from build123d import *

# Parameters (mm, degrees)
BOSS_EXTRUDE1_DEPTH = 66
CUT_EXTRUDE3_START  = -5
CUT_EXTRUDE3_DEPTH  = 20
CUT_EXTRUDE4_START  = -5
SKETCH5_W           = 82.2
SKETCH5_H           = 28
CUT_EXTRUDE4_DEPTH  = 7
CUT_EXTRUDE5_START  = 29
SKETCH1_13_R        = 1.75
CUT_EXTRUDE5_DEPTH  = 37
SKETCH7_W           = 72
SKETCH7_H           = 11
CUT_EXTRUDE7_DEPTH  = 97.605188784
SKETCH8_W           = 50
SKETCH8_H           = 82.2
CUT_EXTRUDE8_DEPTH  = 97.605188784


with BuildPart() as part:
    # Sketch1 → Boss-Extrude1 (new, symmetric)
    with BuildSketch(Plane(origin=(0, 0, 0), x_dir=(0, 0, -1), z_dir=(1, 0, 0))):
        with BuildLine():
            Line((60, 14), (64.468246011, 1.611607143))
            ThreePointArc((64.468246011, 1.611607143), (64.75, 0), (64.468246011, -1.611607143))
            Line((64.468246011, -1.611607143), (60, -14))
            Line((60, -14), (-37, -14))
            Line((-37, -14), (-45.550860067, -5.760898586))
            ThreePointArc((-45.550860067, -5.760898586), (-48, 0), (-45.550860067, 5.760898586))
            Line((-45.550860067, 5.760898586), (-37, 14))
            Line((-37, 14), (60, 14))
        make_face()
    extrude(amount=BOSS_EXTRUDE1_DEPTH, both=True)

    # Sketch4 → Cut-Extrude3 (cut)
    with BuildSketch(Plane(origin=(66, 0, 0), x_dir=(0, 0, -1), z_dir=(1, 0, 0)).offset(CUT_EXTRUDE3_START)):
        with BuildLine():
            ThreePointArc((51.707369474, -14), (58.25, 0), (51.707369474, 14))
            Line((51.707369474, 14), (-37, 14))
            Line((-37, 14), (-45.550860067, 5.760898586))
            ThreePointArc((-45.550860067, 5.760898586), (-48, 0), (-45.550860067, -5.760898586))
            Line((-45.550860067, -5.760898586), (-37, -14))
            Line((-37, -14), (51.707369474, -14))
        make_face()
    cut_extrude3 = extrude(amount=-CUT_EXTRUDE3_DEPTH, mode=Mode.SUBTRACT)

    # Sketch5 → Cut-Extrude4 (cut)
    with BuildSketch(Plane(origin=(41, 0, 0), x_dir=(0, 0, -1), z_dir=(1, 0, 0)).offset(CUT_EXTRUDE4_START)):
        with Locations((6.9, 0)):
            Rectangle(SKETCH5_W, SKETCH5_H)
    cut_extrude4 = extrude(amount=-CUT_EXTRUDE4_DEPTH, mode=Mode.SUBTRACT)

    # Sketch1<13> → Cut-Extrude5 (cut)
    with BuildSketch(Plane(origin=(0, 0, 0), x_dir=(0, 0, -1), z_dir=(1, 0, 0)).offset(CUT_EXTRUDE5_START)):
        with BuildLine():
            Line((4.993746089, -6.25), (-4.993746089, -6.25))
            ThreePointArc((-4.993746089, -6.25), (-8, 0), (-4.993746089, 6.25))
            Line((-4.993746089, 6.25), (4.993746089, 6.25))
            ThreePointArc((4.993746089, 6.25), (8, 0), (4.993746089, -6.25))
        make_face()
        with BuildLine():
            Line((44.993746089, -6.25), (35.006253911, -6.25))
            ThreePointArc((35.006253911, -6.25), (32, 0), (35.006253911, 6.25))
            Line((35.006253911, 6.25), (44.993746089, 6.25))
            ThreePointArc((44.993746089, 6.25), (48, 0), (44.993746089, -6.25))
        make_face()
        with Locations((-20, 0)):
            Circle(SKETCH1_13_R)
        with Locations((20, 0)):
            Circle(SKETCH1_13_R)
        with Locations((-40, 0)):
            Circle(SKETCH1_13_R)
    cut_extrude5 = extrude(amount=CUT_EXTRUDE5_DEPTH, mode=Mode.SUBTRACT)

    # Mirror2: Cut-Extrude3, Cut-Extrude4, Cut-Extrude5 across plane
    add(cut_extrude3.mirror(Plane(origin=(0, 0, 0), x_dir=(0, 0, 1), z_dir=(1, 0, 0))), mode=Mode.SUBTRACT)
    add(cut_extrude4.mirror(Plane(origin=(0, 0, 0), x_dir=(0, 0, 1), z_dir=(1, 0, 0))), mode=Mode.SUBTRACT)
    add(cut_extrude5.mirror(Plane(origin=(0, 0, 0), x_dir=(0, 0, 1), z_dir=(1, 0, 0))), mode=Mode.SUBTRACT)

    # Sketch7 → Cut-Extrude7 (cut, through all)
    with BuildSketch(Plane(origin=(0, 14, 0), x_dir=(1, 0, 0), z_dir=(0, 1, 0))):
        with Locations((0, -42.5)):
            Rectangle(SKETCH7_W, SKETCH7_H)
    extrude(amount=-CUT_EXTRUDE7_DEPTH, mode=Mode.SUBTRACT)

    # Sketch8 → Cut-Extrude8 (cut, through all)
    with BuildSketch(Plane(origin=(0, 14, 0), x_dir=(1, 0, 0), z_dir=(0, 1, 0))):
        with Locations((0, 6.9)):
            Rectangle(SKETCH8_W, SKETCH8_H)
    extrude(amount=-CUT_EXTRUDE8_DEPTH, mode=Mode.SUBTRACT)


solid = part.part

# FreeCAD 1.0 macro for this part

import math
import FreeCAD as App
import Part
import Sketcher
Q = App.Units.Quantity

doc = App.newDocument("Part")
body = doc.addObject("PartDesign::Body", "Body")

# Sketch on YZ plane
sketch1 = doc.addObject("Sketcher::SketchObject", "Sketch")
body.addObject(sketch1)
sketch1.AttachmentSupport = (doc.YZ_Plane, [""])
sketch1.MapMode = "FlatFace"
sketch1.addGeometry([
    Part.LineSegment(App.Vector(1.611607, -64.468246, 0), App.Vector(14, -60, 0)),  # 0
    Part.LineSegment(App.Vector(14, -60, 0), App.Vector(14, 37, 0)),  # 1
    Part.LineSegment(App.Vector(14, 37, 0), App.Vector(5.760899, 45.55086, 0)),  # 2
    Part.ArcOfCircle(Part.Circle(App.Vector(0, 40, 0), App.Vector(0, 0, 1), 8), math.radians(43.936245), math.radians(136.063755)),  # 3
    Part.LineSegment(App.Vector(-5.760899, 45.55086, 0), App.Vector(-14, 37, 0)),  # 4
    Part.LineSegment(App.Vector(-14, 37, 0), App.Vector(-14, -60, 0)),  # 5
    Part.LineSegment(App.Vector(-14, -60, 0), App.Vector(-1.611607, -64.468246, 0)),  # 6
    Part.ArcOfCircle(Part.Circle(App.Vector(0, -60, 0), App.Vector(0, 0, 1), 4.75), math.radians(-109.833362), math.radians(-70.166638)),  # 7
], False)
sketch1.addConstraint([
    Sketcher.Constraint("Coincident", 0, 2, 1, 1),
    Sketcher.Constraint("Coincident", 1, 2, 2, 1),
    Sketcher.Constraint("Tangent", 2, 2, 3, 1),
    Sketcher.Constraint("Tangent", 3, 2, 4, 1),
    Sketcher.Constraint("Coincident", 4, 2, 5, 1),
    Sketcher.Constraint("Coincident", 5, 2, 6, 1),
    Sketcher.Constraint("Tangent", 6, 2, 7, 1),
    Sketcher.Constraint("Tangent", 7, 2, 0, 1),
    Sketcher.Constraint("Vertical", 1),
    Sketcher.Constraint("Vertical", 5),
    Sketcher.Constraint("Symmetric", 2, 2, 3, 2, -2),
    Sketcher.Constraint("Symmetric", 0, 2, 5, 2, -2),
    Sketcher.Constraint("PointOnObject", 7, 3, -2),
    Sketcher.Constraint("Horizontal", 7, 3, 0, 2),
    Sketcher.Constraint("Radius", 3, Q("8 mm")),
    Sketcher.Constraint("DistanceY", 1, 1, 1, 2, Q("97 mm")),
    Sketcher.Constraint("Radius", 7, Q("4.75 mm")),
    Sketcher.Constraint("DistanceY", -1, 1, 3, 3, Q("40 mm")),
    Sketcher.Constraint("DistanceY", 7, 3, -1, 1, Q("60 mm")),
    Sketcher.Constraint("DistanceX", -1, 1, 0, 2, Q("14 mm")),
])
pad1 = doc.addObject("PartDesign::Pad", "Pad")
body.addObject(pad1)
pad1.Profile = sketch1
pad1.Length = 132
pad1.Midplane = True

# Sketch on YZ plane
sketch2 = doc.addObject("Sketcher::SketchObject", "Sketch001")
body.addObject(sketch2)
sketch2.AttachmentSupport = (doc.YZ_Plane, [""])
sketch2.MapMode = "FlatFace"
sketch2.AttachmentOffset = App.Placement(App.Vector(0, 0, 61), App.Rotation())
sketch2.addGeometry([
    Part.ArcOfCircle(Part.Circle(App.Vector(0, -40, 0), App.Vector(0, 0, 1), 18.25), math.radians(-140.096261), math.radians(-39.903739)),  # 0
    Part.LineSegment(App.Vector(14, -51.707369, 0), App.Vector(14, 37, 0)),  # 1
    Part.LineSegment(App.Vector(14, 37, 0), App.Vector(5.760899, 45.55086, 0)),  # 2
    Part.ArcOfCircle(Part.Circle(App.Vector(0, 40, 0), App.Vector(0, 0, 1), 8), math.radians(43.936245), math.radians(136.063755)),  # 3
    Part.LineSegment(App.Vector(-5.760899, 45.55086, 0), App.Vector(-14, 37, 0)),  # 4
    Part.LineSegment(App.Vector(-14, 37, 0), App.Vector(-14, -51.707369, 0)),  # 5
], False)
sketch2.addConstraint([
    Sketcher.Constraint("Coincident", 0, 2, 1, 1),
    Sketcher.Constraint("Coincident", 1, 2, 2, 1),
    Sketcher.Constraint("Tangent", 2, 2, 3, 1),
    Sketcher.Constraint("Tangent", 3, 2, 4, 1),
    Sketcher.Constraint("Coincident", 4, 2, 5, 1),
    Sketcher.Constraint("Coincident", 5, 2, 0, 1),
    Sketcher.Constraint("Vertical", 1),
    Sketcher.Constraint("Vertical", 5),
    Sketcher.Constraint("Symmetric", 0, 3, 3, 3, -1, 1),
    Sketcher.Constraint("Symmetric", 2, 2, 3, 2, -2),
    Sketcher.Constraint("Horizontal", 1, 2, 4, 2),
    Sketcher.Constraint("Radius", 3, Q("8 mm")),
    Sketcher.Constraint("Radius", 0, Q("18.25 mm")),
    Sketcher.Constraint("DistanceY", 0, 3, -1, 1, Q("40 mm")),
    Sketcher.Constraint("DistanceX", -1, 1, 0, 2, Q("14 mm")),
    Sketcher.Constraint("DistanceY", -1, 1, 1, 2, Q("37 mm")),
])
pocket1 = doc.addObject("PartDesign::Pocket", "Pocket")
body.addObject(pocket1)
pocket1.Profile = sketch2
pocket1.Length = 20

# Sketch on YZ plane
sketch3 = doc.addObject("Sketcher::SketchObject", "Sketch002")
body.addObject(sketch3)
sketch3.AttachmentSupport = (doc.YZ_Plane, [""])
sketch3.MapMode = "FlatFace"
sketch3.AttachmentOffset = App.Placement(App.Vector(0, 0, 36), App.Rotation())
sketch3.addGeometry([
    Part.LineSegment(App.Vector(14, 34.2, 0), App.Vector(-14, 34.2, 0)),
    Part.LineSegment(App.Vector(-14, 34.2, 0), App.Vector(-14, -48, 0)),
    Part.LineSegment(App.Vector(-14, -48, 0), App.Vector(14, -48, 0)),
    Part.LineSegment(App.Vector(14, -48, 0), App.Vector(14, 34.2, 0)),
], False)
sketch3.addConstraint([
    Sketcher.Constraint("Coincident", 0, 2, 1, 1),
    Sketcher.Constraint("Coincident", 1, 2, 2, 1),
    Sketcher.Constraint("Coincident", 2, 2, 3, 1),
    Sketcher.Constraint("Coincident", 3, 2, 0, 1),
    Sketcher.Constraint("Horizontal", 0),
    Sketcher.Constraint("Vertical", 1),
    Sketcher.Constraint("Horizontal", 2),
    Sketcher.Constraint("Vertical", 3),
    Sketcher.Constraint("DistanceX", 0, 2, 0, 1, Q("28 mm")),
    Sketcher.Constraint("DistanceY", 1, 2, 1, 1, Q("82.2 mm")),
    Sketcher.Constraint("DistanceX", 0, 2, -1, 1, Q("14 mm")),
    Sketcher.Constraint("DistanceY", 1, 2, -1, 1, Q("48 mm")),
])
pocket2 = doc.addObject("PartDesign::Pocket", "Pocket001")
body.addObject(pocket2)
pocket2.Profile = sketch3
pocket2.Length = 7

# Sketch on YZ plane
sketch4 = doc.addObject("Sketcher::SketchObject", "Sketch003")
body.addObject(sketch4)
sketch4.AttachmentSupport = (doc.YZ_Plane, [""])
sketch4.MapMode = "FlatFace"
sketch4.AttachmentOffset = App.Placement(App.Vector(0, 0, 29), App.Rotation())
sketch4.addGeometry([
    Part.LineSegment(App.Vector(-6.25, 4.993746, 0), App.Vector(-6.25, -4.993746, 0)),  # 0
    Part.ArcOfCircle(Part.Circle(App.Vector(0, 0, 0), App.Vector(0, 0, 1), 8), math.radians(-141.375167), math.radians(-38.624833)),  # 1
    Part.LineSegment(App.Vector(6.25, -4.993746, 0), App.Vector(6.25, 4.993746, 0)),  # 2
    Part.ArcOfCircle(Part.Circle(App.Vector(0, 0, 0), App.Vector(0, 0, 1), 8), math.radians(38.624833), math.radians(141.375167)),  # 3
    Part.LineSegment(App.Vector(-6.25, -35.006254, 0), App.Vector(-6.25, -44.993746, 0)),  # 4
    Part.ArcOfCircle(Part.Circle(App.Vector(0, -40, 0), App.Vector(0, 0, 1), 8), math.radians(-141.375167), math.radians(-38.624833)),  # 5
    Part.LineSegment(App.Vector(6.25, -44.993746, 0), App.Vector(6.25, -35.006254, 0)),  # 6
    Part.ArcOfCircle(Part.Circle(App.Vector(0, -40, 0), App.Vector(0, 0, 1), 8), math.radians(38.624833), math.radians(141.375167)),  # 7
    Part.Circle(App.Vector(0, 20, 0), App.Vector(0, 0, 1), 1.75),  # 8
    Part.Circle(App.Vector(0, -20, 0), App.Vector(0, 0, 1), 1.75),  # 9
    Part.Circle(App.Vector(0, 40, 0), App.Vector(0, 0, 1), 1.75),  # 10
], False)
sketch4.addConstraint([
    Sketcher.Constraint("Coincident", 0, 2, 1, 1),
    Sketcher.Constraint("Coincident", 1, 2, 2, 1),
    Sketcher.Constraint("Coincident", 2, 2, 3, 1),
    Sketcher.Constraint("Coincident", 3, 2, 0, 1),
    Sketcher.Constraint("Coincident", 4, 2, 5, 1),
    Sketcher.Constraint("Coincident", 5, 2, 6, 1),
    Sketcher.Constraint("Coincident", 6, 2, 7, 1),
    Sketcher.Constraint("Coincident", 7, 2, 4, 1),
    Sketcher.Constraint("Vertical", 0),
    Sketcher.Constraint("Vertical", 2),
    Sketcher.Constraint("Vertical", 4),
    Sketcher.Constraint("Vertical", 6),
    Sketcher.Constraint("Coincident", 1, 3, -1, 1),
    Sketcher.Constraint("Coincident", 3, 3, -1, 1),
    Sketcher.Constraint("Coincident", 7, 3, 5, 3),
    Sketcher.Constraint("Equal", 1, 3),
    Sketcher.Constraint("Equal", 3, 5),
    Sketcher.Constraint("Equal", 5, 7),
    Sketcher.Constraint("Equal", 8, 9),
    Sketcher.Constraint("Equal", 9, 10),
    Sketcher.Constraint("Symmetric", 8, 3, 9, 3, -1, 1),
    Sketcher.Constraint("Symmetric", 5, 3, 10, 3, -1, 1),
    Sketcher.Constraint("Symmetric", 4, 2, 5, 2, -2),
    Sketcher.Constraint("PointOnObject", 8, 3, -2),
    Sketcher.Constraint("Horizontal", 0, 2, 1, 2),
    Sketcher.Constraint("Vertical", 3, 2, 4, 2),
    Sketcher.Constraint("Radius", 1, Q("8 mm")),
    Sketcher.Constraint("Diameter", 8, Q("3.5 mm")),
    Sketcher.Constraint("DistanceY", 5, 3, -1, 1, Q("40 mm")),
    Sketcher.Constraint("DistanceY", -1, 1, 8, 3, Q("20 mm")),
    Sketcher.Constraint("DistanceX", 0, 2, 1, 2, Q("12.5 mm")),
])
pocket3 = doc.addObject("PartDesign::Pocket", "Pocket002")
body.addObject(pocket3)
pocket3.Profile = sketch4
pocket3.Length = 37
pocket3.Reversed = True
doc.recompute()

mirrored = doc.addObject("PartDesign::Mirrored", "Mirrored")
body.addObject(mirrored)
mirrored.Originals = [pocket1, pocket2, pocket3]
mirrored.MirrorPlane = (doc.YZ_Plane, [""])
body.Tip = mirrored

# Sketch on XZ plane
sketch5 = doc.addObject("Sketcher::SketchObject", "Sketch004")
body.addObject(sketch5)
sketch5.AttachmentSupport = (doc.XZ_Plane, [""])
sketch5.MapMode = "FlatFace"
sketch5.AttachmentOffset = App.Placement(App.Vector(0, 0, -14), App.Rotation())
sketch5.addGeometry([
    Part.LineSegment(App.Vector(-36, 37, 0), App.Vector(-36, 48, 0)),
    Part.LineSegment(App.Vector(-36, 48, 0), App.Vector(36, 48, 0)),
    Part.LineSegment(App.Vector(36, 48, 0), App.Vector(36, 37, 0)),
    Part.LineSegment(App.Vector(36, 37, 0), App.Vector(-36, 37, 0)),
], False)
sketch5.addConstraint([
    Sketcher.Constraint("Coincident", 0, 2, 1, 1),
    Sketcher.Constraint("Coincident", 1, 2, 2, 1),
    Sketcher.Constraint("Coincident", 2, 2, 3, 1),
    Sketcher.Constraint("Coincident", 3, 2, 0, 1),
    Sketcher.Constraint("Vertical", 0),
    Sketcher.Constraint("Horizontal", 1),
    Sketcher.Constraint("Vertical", 2),
    Sketcher.Constraint("Horizontal", 3),
    Sketcher.Constraint("DistanceX", 1, 1, 1, 2, Q("72 mm")),
    Sketcher.Constraint("DistanceY", 0, 1, 0, 2, Q("11 mm")),
    Sketcher.Constraint("DistanceX", 0, 2, -1, 1, Q("36 mm")),
    Sketcher.Constraint("DistanceY", -1, 1, 0, 2, Q("48 mm")),
])
pocket4 = doc.addObject("PartDesign::Pocket", "Pocket003")
body.addObject(pocket4)
pocket4.Profile = sketch5
pocket4.Type = "ThroughAll"
pocket4.Reversed = True

# Sketch on XZ plane
sketch6 = doc.addObject("Sketcher::SketchObject", "Sketch005")
body.addObject(sketch6)
sketch6.AttachmentSupport = (doc.XZ_Plane, [""])
sketch6.MapMode = "FlatFace"
sketch6.AttachmentOffset = App.Placement(App.Vector(0, 0, -14), App.Rotation())
sketch6.addGeometry([
    Part.LineSegment(App.Vector(-25, -48, 0), App.Vector(-25, 34.2, 0)),
    Part.LineSegment(App.Vector(-25, 34.2, 0), App.Vector(25, 34.2, 0)),
    Part.LineSegment(App.Vector(25, 34.2, 0), App.Vector(25, -48, 0)),
    Part.LineSegment(App.Vector(25, -48, 0), App.Vector(-25, -48, 0)),
], False)
sketch6.addConstraint([
    Sketcher.Constraint("Coincident", 0, 2, 1, 1),
    Sketcher.Constraint("Coincident", 1, 2, 2, 1),
    Sketcher.Constraint("Coincident", 2, 2, 3, 1),
    Sketcher.Constraint("Coincident", 3, 2, 0, 1),
    Sketcher.Constraint("Vertical", 0),
    Sketcher.Constraint("Horizontal", 1),
    Sketcher.Constraint("Vertical", 2),
    Sketcher.Constraint("Horizontal", 3),
    Sketcher.Constraint("DistanceX", 1, 1, 1, 2, Q("50 mm")),
    Sketcher.Constraint("DistanceY", 0, 1, 0, 2, Q("82.2 mm")),
    Sketcher.Constraint("DistanceX", 0, 2, -1, 1, Q("25 mm")),
    Sketcher.Constraint("DistanceY", 2, 2, -1, 1, Q("48 mm")),
])
pocket5 = doc.addObject("PartDesign::Pocket", "Pocket004")
body.addObject(pocket5)
pocket5.Profile = sketch6
pocket5.Type = "ThroughAll"
pocket5.Reversed = True

doc.recompute()
